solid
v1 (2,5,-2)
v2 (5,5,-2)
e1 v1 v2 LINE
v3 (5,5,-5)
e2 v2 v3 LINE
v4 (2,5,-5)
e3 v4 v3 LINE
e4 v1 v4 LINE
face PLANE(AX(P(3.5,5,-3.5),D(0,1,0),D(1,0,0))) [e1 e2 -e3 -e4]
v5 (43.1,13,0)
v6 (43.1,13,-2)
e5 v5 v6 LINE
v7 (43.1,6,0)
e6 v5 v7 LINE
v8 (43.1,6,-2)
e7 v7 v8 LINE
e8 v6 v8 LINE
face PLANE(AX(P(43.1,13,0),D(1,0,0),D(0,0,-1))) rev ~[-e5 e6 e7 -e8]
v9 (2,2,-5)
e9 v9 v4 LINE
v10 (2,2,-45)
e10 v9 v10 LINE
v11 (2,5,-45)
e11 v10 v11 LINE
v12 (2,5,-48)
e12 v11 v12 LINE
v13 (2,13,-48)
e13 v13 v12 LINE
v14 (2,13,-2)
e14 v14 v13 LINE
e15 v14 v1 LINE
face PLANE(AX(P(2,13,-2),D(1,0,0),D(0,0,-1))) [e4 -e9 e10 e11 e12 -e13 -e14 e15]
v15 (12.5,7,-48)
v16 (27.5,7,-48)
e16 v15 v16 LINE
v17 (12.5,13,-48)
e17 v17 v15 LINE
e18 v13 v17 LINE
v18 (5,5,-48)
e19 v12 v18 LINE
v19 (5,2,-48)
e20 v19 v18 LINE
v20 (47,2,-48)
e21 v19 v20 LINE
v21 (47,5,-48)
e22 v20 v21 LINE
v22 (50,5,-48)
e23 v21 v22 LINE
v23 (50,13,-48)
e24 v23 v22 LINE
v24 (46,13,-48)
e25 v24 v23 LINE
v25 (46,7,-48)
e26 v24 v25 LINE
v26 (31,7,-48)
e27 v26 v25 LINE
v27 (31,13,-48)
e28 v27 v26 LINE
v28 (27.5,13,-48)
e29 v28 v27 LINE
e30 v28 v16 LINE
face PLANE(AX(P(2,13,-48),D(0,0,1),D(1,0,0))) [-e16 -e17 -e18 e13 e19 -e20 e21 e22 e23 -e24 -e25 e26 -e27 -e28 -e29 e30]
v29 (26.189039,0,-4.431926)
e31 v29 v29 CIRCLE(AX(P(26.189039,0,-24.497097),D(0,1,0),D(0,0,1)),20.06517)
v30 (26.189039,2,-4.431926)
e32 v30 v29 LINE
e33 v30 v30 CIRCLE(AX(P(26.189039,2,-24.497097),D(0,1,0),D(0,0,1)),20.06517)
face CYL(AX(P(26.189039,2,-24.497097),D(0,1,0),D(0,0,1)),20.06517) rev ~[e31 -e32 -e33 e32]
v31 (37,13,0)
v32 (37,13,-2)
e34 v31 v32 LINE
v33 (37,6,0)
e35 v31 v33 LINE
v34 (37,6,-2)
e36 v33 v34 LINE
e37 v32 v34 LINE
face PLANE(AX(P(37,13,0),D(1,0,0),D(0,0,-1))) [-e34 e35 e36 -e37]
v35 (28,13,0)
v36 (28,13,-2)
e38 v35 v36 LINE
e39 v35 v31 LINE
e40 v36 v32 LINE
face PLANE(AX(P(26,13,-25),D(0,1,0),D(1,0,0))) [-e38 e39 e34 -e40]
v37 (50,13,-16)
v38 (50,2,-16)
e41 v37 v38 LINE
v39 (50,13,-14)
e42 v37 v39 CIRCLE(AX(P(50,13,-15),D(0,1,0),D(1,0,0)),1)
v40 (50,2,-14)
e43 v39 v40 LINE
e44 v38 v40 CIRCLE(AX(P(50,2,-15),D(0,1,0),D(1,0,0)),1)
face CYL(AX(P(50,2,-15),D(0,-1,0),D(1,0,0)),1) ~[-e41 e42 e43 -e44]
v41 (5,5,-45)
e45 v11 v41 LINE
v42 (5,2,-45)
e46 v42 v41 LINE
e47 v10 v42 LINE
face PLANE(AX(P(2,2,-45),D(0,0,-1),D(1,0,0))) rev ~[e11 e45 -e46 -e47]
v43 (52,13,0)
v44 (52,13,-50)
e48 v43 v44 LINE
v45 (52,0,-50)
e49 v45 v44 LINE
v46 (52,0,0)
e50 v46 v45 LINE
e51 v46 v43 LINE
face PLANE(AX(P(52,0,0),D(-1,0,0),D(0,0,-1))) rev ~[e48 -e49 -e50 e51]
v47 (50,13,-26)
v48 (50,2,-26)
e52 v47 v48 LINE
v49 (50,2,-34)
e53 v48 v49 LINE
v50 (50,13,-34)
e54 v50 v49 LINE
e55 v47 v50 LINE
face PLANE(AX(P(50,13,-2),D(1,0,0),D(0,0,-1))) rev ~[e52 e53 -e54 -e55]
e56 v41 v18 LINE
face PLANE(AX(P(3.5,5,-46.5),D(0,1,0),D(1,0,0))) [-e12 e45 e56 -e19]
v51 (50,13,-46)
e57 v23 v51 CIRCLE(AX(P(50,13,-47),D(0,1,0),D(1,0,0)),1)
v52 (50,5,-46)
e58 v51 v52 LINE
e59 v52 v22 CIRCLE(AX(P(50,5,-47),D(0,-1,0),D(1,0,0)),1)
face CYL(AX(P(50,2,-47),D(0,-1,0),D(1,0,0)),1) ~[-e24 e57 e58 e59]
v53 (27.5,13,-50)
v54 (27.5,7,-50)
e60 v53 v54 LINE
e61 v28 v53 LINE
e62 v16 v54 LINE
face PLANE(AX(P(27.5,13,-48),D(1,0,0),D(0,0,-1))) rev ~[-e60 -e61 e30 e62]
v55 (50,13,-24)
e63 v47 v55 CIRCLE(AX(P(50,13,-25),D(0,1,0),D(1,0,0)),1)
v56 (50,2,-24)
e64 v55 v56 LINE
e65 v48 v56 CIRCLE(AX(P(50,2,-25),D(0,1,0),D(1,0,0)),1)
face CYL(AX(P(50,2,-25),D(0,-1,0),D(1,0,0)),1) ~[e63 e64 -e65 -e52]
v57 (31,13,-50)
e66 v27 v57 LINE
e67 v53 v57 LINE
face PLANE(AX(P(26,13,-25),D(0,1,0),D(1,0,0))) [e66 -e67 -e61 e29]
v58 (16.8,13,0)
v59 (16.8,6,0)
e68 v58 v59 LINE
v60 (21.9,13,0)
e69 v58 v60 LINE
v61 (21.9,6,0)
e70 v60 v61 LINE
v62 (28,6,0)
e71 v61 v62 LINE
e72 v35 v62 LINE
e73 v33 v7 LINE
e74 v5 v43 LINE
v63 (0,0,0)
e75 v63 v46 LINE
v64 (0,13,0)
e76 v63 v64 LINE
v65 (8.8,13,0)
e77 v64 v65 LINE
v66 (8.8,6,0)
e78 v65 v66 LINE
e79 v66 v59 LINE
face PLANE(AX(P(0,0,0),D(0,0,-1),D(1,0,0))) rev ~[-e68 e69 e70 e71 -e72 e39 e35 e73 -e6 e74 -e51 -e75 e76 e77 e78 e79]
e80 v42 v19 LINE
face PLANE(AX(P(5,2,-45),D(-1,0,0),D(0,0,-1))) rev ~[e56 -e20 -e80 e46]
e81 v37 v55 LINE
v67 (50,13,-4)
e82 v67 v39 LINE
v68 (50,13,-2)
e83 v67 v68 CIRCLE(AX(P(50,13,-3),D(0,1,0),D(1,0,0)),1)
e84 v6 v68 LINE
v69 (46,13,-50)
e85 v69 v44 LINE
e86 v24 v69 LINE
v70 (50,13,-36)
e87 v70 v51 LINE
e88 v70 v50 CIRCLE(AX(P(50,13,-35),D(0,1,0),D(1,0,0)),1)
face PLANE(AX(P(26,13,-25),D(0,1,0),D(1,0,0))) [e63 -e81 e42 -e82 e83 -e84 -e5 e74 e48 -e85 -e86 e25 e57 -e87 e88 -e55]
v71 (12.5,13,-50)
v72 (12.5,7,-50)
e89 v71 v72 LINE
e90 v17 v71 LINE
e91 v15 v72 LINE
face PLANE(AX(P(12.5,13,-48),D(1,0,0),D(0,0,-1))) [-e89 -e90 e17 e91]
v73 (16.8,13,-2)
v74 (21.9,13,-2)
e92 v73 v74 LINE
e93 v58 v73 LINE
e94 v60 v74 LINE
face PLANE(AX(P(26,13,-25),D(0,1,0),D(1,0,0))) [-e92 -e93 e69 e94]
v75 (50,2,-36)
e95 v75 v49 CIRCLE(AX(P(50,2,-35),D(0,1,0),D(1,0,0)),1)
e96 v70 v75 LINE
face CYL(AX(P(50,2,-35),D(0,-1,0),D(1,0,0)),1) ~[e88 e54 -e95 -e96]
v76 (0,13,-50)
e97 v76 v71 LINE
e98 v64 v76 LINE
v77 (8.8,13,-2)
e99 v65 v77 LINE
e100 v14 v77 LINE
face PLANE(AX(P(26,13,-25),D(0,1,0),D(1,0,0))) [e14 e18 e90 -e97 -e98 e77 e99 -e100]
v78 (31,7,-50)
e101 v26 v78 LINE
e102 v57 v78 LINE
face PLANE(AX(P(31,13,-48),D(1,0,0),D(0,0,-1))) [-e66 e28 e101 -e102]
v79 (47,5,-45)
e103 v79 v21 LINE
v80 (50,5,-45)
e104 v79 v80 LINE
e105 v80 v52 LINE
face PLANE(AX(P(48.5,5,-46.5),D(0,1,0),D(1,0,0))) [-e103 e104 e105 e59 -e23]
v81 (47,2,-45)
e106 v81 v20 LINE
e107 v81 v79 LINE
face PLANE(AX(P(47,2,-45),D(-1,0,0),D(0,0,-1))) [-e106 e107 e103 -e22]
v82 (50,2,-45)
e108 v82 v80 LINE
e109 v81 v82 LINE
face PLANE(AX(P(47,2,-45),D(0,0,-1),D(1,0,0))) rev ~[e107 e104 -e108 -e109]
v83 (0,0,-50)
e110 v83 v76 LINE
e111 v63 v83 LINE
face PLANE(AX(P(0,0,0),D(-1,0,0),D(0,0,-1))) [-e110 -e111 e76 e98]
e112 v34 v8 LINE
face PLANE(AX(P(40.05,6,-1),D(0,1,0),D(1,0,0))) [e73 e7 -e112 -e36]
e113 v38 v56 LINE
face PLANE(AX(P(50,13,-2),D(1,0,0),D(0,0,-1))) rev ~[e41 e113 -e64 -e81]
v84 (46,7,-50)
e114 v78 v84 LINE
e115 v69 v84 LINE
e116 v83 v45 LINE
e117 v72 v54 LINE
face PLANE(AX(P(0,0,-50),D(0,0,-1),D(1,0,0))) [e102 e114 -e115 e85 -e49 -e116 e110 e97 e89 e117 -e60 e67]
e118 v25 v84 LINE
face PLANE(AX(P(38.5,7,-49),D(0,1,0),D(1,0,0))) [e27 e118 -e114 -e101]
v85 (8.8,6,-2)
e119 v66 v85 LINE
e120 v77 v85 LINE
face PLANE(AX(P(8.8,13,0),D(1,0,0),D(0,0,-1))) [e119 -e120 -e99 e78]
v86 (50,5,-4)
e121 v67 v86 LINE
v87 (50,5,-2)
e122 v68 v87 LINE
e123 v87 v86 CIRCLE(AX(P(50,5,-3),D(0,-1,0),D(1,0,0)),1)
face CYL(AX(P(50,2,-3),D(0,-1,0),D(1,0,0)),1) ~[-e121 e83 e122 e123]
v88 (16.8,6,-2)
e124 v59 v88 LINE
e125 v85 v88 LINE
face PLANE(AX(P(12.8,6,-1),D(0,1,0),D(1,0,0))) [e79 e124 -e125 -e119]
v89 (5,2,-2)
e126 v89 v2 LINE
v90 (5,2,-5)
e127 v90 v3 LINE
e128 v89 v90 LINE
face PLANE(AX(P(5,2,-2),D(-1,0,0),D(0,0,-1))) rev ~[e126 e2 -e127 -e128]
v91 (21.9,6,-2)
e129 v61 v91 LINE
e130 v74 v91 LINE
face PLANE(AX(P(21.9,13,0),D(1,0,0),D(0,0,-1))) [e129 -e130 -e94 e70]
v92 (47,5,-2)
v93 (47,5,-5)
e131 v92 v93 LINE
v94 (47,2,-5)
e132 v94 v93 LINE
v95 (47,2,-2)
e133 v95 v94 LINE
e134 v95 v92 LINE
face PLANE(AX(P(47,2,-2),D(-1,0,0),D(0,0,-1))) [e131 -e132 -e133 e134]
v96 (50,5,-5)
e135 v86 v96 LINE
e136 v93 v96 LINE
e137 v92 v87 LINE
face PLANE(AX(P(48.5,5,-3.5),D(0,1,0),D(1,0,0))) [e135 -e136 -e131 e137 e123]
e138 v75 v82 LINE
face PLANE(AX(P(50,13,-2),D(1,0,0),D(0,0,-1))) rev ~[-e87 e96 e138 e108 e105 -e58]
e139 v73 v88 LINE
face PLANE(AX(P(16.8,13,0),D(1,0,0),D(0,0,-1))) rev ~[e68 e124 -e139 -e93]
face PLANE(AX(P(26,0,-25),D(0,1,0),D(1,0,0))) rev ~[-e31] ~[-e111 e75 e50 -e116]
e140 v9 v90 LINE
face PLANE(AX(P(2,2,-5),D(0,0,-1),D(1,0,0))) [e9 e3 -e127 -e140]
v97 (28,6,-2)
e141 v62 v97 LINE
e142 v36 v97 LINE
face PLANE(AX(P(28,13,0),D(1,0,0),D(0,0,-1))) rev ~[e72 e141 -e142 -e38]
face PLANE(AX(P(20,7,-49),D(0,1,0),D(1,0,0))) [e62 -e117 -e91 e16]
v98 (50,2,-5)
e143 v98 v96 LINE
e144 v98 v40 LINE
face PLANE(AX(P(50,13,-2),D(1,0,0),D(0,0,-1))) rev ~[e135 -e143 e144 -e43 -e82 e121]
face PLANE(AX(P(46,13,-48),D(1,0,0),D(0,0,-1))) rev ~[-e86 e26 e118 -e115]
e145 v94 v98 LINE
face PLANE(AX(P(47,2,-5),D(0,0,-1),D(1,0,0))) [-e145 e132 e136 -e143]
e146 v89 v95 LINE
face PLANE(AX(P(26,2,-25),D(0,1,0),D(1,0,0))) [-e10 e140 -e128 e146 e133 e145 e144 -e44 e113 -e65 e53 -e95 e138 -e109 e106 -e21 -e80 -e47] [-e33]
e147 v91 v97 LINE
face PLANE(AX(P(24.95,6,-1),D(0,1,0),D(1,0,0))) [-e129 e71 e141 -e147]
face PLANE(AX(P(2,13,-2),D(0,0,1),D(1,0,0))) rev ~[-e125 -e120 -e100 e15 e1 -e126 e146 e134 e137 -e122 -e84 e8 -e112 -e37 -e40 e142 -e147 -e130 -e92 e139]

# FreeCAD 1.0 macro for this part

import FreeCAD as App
import Part
import Sketcher


def add_polygon(sketch, points):
    """Adds a closed chain of lines whose ends are joined by coincident constraints."""
    first, n = sketch.GeometryCount, len(points)
    for a, b in zip(points, points[1:] + points[:1]):
        sketch.addGeometry(Part.LineSegment(App.Vector(*a, 0), App.Vector(*b, 0)), False)
    for i in range(n):
        sketch.addConstraint(Sketcher.Constraint("Coincident", first + i, 2, first + (i + 1) % n, 1))

doc = App.newDocument("Part")
params = doc.addObject("Spreadsheet::Sheet", "Params")
for row, (alias, value) in enumerate([
    ("sketch1_width", "52 mm"),
    ("sketch1_height", "50 mm"),
    ("pad1_length", "13 mm"),
    ("sketch2_width", "48 mm"),
    ("sketch2_height", "46 mm"),
    ("pocket1_length", "11 mm"),
    ("sketch3_width", "8 mm"),
    ("sketch3_height", "2 mm"),
    ("sketch3_width2", "6.1 mm"),
    ("pocket2_length", "7 mm"),
    ("sketch4_width", "3 mm"),
    ("pad2_length", "3 mm"),
    ("sketch5_diameter", "2 mm"),
    ("pad3_length", "11 mm"),
    ("sketch6_width", "15 mm"),
    ("sketch6_height", "2 mm"),
    ("pocket3_length", "6 mm"),
    ("pocket4_length", "10 mm"),
], start=1):
    params.set(f"A{row}", alias)
    params.set(f"B{row}", "=" + value)
    params.setAlias(f"B{row}", alias)

body = doc.addObject("PartDesign::Body", "Body")

# Sketch on XZ plane
sketch1 = body.newObject("Sketcher::SketchObject", "Sketch")
sketch1.AttachmentSupport = (doc.getObject("XZ_Plane"), [""])
sketch1.MapMode = "FlatFace"
add_polygon(sketch1, [(0, -50), (0, 0), (52, 0), (52, -50)])  # lines 0-3
sketch1.addConstraint(Sketcher.Constraint("Vertical", 0))
sketch1.addConstraint(Sketcher.Constraint("Horizontal", 1))
sketch1.addConstraint(Sketcher.Constraint("Vertical", 2))
sketch1.addConstraint(Sketcher.Constraint("Horizontal", 3))
sketch1.addConstraint(Sketcher.Constraint("Coincident", 0, 2, -1, 1))
sketch1.addConstraint(Sketcher.Constraint("DistanceX", 1, 1, 1, 2, 52.0))
sketch1.addConstraint(Sketcher.Constraint("DistanceY", 0, 1, 0, 2, 50.0))
sketch1.setExpression("Constraints[9]", "Params.sketch1_width")
sketch1.setExpression("Constraints[10]", "Params.sketch1_height")
pad1 = body.newObject("PartDesign::Pad", "Pad")
pad1.Profile = sketch1
pad1.setExpression("Length", "Params.pad1_length")
pad1.Reversed = True

# Sketch on XZ plane
sketch2 = body.newObject("Sketcher::SketchObject", "Sketch001")
sketch2.AttachmentSupport = (doc.getObject("XZ_Plane"), [""])
sketch2.MapMode = "FlatFace"
sketch2.AttachmentOffset = App.Placement(App.Vector(0, 0, -13), App.Rotation())
add_polygon(sketch2, [(2, -48), (2, -2), (50, -2), (50, -48)])  # lines 0-3
sketch2.addConstraint(Sketcher.Constraint("Vertical", 0))
sketch2.addConstraint(Sketcher.Constraint("Horizontal", 1))
sketch2.addConstraint(Sketcher.Constraint("Vertical", 2))
sketch2.addConstraint(Sketcher.Constraint("Horizontal", 3))
sketch2.addConstraint(Sketcher.Constraint("DistanceX", 1, 1, 1, 2, 48.0))
sketch2.addConstraint(Sketcher.Constraint("DistanceY", 0, 1, 0, 2, 46.0))
sketch2.addConstraint(Sketcher.Constraint("DistanceX", -1, 1, 0, 2, 2.0))
sketch2.addConstraint(Sketcher.Constraint("DistanceY", 0, 2, -1, 1, 2.0))
sketch2.setExpression("Constraints[8]", "Params.sketch2_width")
sketch2.setExpression("Constraints[9]", "Params.sketch2_height")
pocket1 = body.newObject("PartDesign::Pocket", "Pocket")
pocket1.Profile = sketch2
pocket1.setExpression("Length", "Params.pocket1_length")
pocket1.Reversed = True

# Sketch on XZ plane
sketch3 = body.newObject("Sketcher::SketchObject", "Sketch002")
sketch3.AttachmentSupport = (doc.getObject("XZ_Plane"), [""])
sketch3.MapMode = "FlatFace"
sketch3.AttachmentOffset = App.Placement(App.Vector(0, 0, -13), App.Rotation())
add_polygon(sketch3, [(37, -2), (37, 0), (43.1, 0), (43.1, -2)])  # lines 0-3
add_polygon(sketch3, [(21.9, -2), (21.9, 0), (28, 0), (28, -2)])  # lines 4-7
add_polygon(sketch3, [(8.8, -2), (8.8, 0), (16.8, 0), (16.8, -2)])  # lines 8-11
sketch3.addConstraint(Sketcher.Constraint("Vertical", 0))
sketch3.addConstraint(Sketcher.Constraint("Horizontal", 1))
sketch3.addConstraint(Sketcher.Constraint("Vertical", 2))
sketch3.addConstraint(Sketcher.Constraint("Horizontal", 3))
sketch3.addConstraint(Sketcher.Constraint("Vertical", 4))
sketch3.addConstraint(Sketcher.Constraint("Horizontal", 5))
sketch3.addConstraint(Sketcher.Constraint("Vertical", 6))
sketch3.addConstraint(Sketcher.Constraint("Horizontal", 7))
sketch3.addConstraint(Sketcher.Constraint("Vertical", 8))
sketch3.addConstraint(Sketcher.Constraint("Horizontal", 9))
sketch3.addConstraint(Sketcher.Constraint("Vertical", 10))
sketch3.addConstraint(Sketcher.Constraint("Horizontal", 11))
sketch3.addConstraint(Sketcher.Constraint("PointOnObject", 0, 2, -1))
sketch3.addConstraint(Sketcher.Constraint("PointOnObject", 4, 2, -1))
sketch3.addConstraint(Sketcher.Constraint("PointOnObject", 8, 2, -1))
sketch3.addConstraint(Sketcher.Constraint("Horizontal", 3, 2, 6, 2))
sketch3.addConstraint(Sketcher.Constraint("Horizontal", 7, 2, 10, 2))
sketch3.addConstraint(Sketcher.Constraint("Equal", 3, 5))
sketch3.addConstraint(Sketcher.Constraint("DistanceX", 9, 1, 9, 2, 8.0))
sketch3.addConstraint(Sketcher.Constraint("DistanceY", 0, 1, 0, 2, 2.0))
sketch3.addConstraint(Sketcher.Constraint("DistanceX", 1, 1, 1, 2, 6.1))
sketch3.addConstraint(Sketcher.Constraint("DistanceX", -1, 1, 0, 2, 37.0))
sketch3.addConstraint(Sketcher.Constraint("DistanceX", -1, 1, 5, 2, 28.0))
sketch3.addConstraint(Sketcher.Constraint("DistanceX", -1, 1, 8, 2, 8.8))
sketch3.setExpression("Constraints[30]", "Params.sketch3_width")
sketch3.setExpression("Constraints[31]", "Params.sketch3_height")
sketch3.setExpression("Constraints[32]", "Params.sketch3_width2")
pocket2 = body.newObject("PartDesign::Pocket", "Pocket001")
pocket2.Profile = sketch3
pocket2.setExpression("Length", "Params.pocket2_length")
pocket2.Reversed = True

# Sketch on XZ plane
sketch4 = body.newObject("Sketcher::SketchObject", "Sketch003")
sketch4.AttachmentSupport = (doc.getObject("XZ_Plane"), [""])
sketch4.MapMode = "FlatFace"
sketch4.AttachmentOffset = App.Placement(App.Vector(0, 0, -2), App.Rotation())
add_polygon(sketch4, [(2, -48), (2, -45), (5, -45), (5, -48)])  # lines 0-3
add_polygon(sketch4, [(47, -48), (47, -45), (50, -45), (50, -48)])  # lines 4-7
add_polygon(sketch4, [(2, -5), (2, -2), (5, -2), (5, -5)])  # lines 8-11
add_polygon(sketch4, [(47, -5), (47, -2), (50, -2), (50, -5)])  # lines 12-15
sketch4.addConstraint(Sketcher.Constraint("Vertical", 0))
sketch4.addConstraint(Sketcher.Constraint("Horizontal", 1))
sketch4.addConstraint(Sketcher.Constraint("Vertical", 2))
sketch4.addConstraint(Sketcher.Constraint("Horizontal", 3))
sketch4.addConstraint(Sketcher.Constraint("Vertical", 4))
sketch4.addConstraint(Sketcher.Constraint("Horizontal", 5))
sketch4.addConstraint(Sketcher.Constraint("Vertical", 6))
sketch4.addConstraint(Sketcher.Constraint("Horizontal", 7))
sketch4.addConstraint(Sketcher.Constraint("Vertical", 8))
sketch4.addConstraint(Sketcher.Constraint("Horizontal", 9))
sketch4.addConstraint(Sketcher.Constraint("Vertical", 10))
sketch4.addConstraint(Sketcher.Constraint("Horizontal", 11))
sketch4.addConstraint(Sketcher.Constraint("Vertical", 12))
sketch4.addConstraint(Sketcher.Constraint("Horizontal", 13))
sketch4.addConstraint(Sketcher.Constraint("Vertical", 14))
sketch4.addConstraint(Sketcher.Constraint("Horizontal", 15))
sketch4.addConstraint(Sketcher.Constraint("Horizontal", 1, 2, 4, 2))
sketch4.addConstraint(Sketcher.Constraint("Horizontal", 3, 2, 6, 2))
sketch4.addConstraint(Sketcher.Constraint("Horizontal", 9, 2, 12, 2))
sketch4.addConstraint(Sketcher.Constraint("Horizontal", 11, 2, 14, 2))
sketch4.addConstraint(Sketcher.Constraint("Vertical", 3, 2, 8, 2))
sketch4.addConstraint(Sketcher.Constraint("Vertical", 2, 2, 9, 2))
sketch4.addConstraint(Sketcher.Constraint("Vertical", 7, 2, 12, 2))
sketch4.addConstraint(Sketcher.Constraint("Vertical", 6, 2, 13, 2))
sketch4.addConstraint(Sketcher.Constraint("Equal", 3, 5))
sketch4.addConstraint(Sketcher.Constraint("Equal", 15, 0))
sketch4.addConstraint(Sketcher.Constraint("Equal", 6, 8))
sketch4.addConstraint(Sketcher.Constraint("DistanceX", 1, 1, 1, 2, 3.0))
sketch4.addConstraint(Sketcher.Constraint("DistanceX", -1, 1, 0, 2, 2.0))
sketch4.addConstraint(Sketcher.Constraint("DistanceY", 0, 2, -1, 1, 45.0))
sketch4.addConstraint(Sketcher.Constraint("DistanceX", -1, 1, 4, 2, 47.0))
sketch4.addConstraint(Sketcher.Constraint("DistanceY", 8, 2, -1, 1, 2.0))
sketch4.setExpression("Constraints[43]", "Params.sketch4_width")
pad2 = body.newObject("PartDesign::Pad", "Pad001")
pad2.Profile = sketch4
pad2.setExpression("Length", "Params.pad2_length")
pad2.Reversed = True

# Sketch on XZ plane
sketch5 = body.newObject("Sketcher::SketchObject", "Sketch004")
sketch5.AttachmentSupport = (doc.getObject("XZ_Plane"), [""])
sketch5.MapMode = "FlatFace"
sketch5.AttachmentOffset = App.Placement(App.Vector(0, 0, -2), App.Rotation())
sketch5.addGeometry(Part.Circle(App.Vector(50, -35, 0), App.Vector(0, 0, 1), 1), False)
sketch5.addGeometry(Part.Circle(App.Vector(50, -25, 0), App.Vector(0, 0, 1), 1), False)
sketch5.addGeometry(Part.Circle(App.Vector(50, -15, 0), App.Vector(0, 0, 1), 1), False)
sketch5.addGeometry(Part.Circle(App.Vector(50, -47, 0), App.Vector(0, 0, 1), 1), False)
sketch5.addGeometry(Part.Circle(App.Vector(50, -3, 0), App.Vector(0, 0, 1), 1), False)
sketch5.addConstraint(Sketcher.Constraint("Equal", 0, 1))
sketch5.addConstraint(Sketcher.Constraint("Equal", 1, 2))
sketch5.addConstraint(Sketcher.Constraint("Equal", 2, 3))
sketch5.addConstraint(Sketcher.Constraint("Equal", 3, 4))
sketch5.addConstraint(Sketcher.Constraint("Vertical", 0, 3, 1, 3))
sketch5.addConstraint(Sketcher.Constraint("Vertical", 1, 3, 2, 3))
sketch5.addConstraint(Sketcher.Constraint("Vertical", 2, 3, 3, 3))
sketch5.addConstraint(Sketcher.Constraint("Vertical", 3, 3, 4, 3))
sketch5.addConstraint(Sketcher.Constraint("Diameter", 0, 2.0))
sketch5.addConstraint(Sketcher.Constraint("DistanceX", -1, 1, 0, 3, 50.0))
sketch5.addConstraint(Sketcher.Constraint("DistanceY", 0, 3, -1, 1, 35.0))
sketch5.addConstraint(Sketcher.Constraint("DistanceY", 1, 3, -1, 1, 25.0))
sketch5.addConstraint(Sketcher.Constraint("DistanceY", 2, 3, -1, 1, 15.0))
sketch5.addConstraint(Sketcher.Constraint("DistanceY", 3, 3, -1, 1, 47.0))
sketch5.addConstraint(Sketcher.Constraint("DistanceY", 4, 3, -1, 1, 3.0))
sketch5.setExpression("Constraints[8]", "Params.sketch5_diameter")
pad3 = body.newObject("PartDesign::Pad", "Pad002")
pad3.Profile = sketch5
pad3.setExpression("Length", "Params.pad3_length")
pad3.Reversed = True

# Sketch on XZ plane
sketch6 = body.newObject("Sketcher::SketchObject", "Sketch005")
sketch6.AttachmentSupport = (doc.getObject("XZ_Plane"), [""])
sketch6.MapMode = "FlatFace"
sketch6.AttachmentOffset = App.Placement(App.Vector(0, 0, -13), App.Rotation())
add_polygon(sketch6, [(31, -50), (31, -48), (46, -48), (46, -50)])  # lines 0-3
add_polygon(sketch6, [(12.5, -50), (12.5, -48), (27.5, -48), (27.5, -50)])  # lines 4-7
sketch6.addConstraint(Sketcher.Constraint("Vertical", 0))
sketch6.addConstraint(Sketcher.Constraint("Horizontal", 1))
sketch6.addConstraint(Sketcher.Constraint("Vertical", 2))
sketch6.addConstraint(Sketcher.Constraint("Horizontal", 3))
sketch6.addConstraint(Sketcher.Constraint("Vertical", 4))
sketch6.addConstraint(Sketcher.Constraint("Horizontal", 5))
sketch6.addConstraint(Sketcher.Constraint("Vertical", 6))
sketch6.addConstraint(Sketcher.Constraint("Horizontal", 7))
sketch6.addConstraint(Sketcher.Constraint("Horizontal", 1, 2, 4, 2))
sketch6.addConstraint(Sketcher.Constraint("Horizontal", 3, 2, 6, 2))
sketch6.addConstraint(Sketcher.Constraint("Equal", 3, 5))
sketch6.addConstraint(Sketcher.Constraint("DistanceX", 1, 1, 1, 2, 15.0))
sketch6.addConstraint(Sketcher.Constraint("DistanceY", 0, 1, 0, 2, 2.0))
sketch6.addConstraint(Sketcher.Constraint("DistanceX", -1, 1, 0, 2, 31.0))
sketch6.addConstraint(Sketcher.Constraint("DistanceY", 0, 2, -1, 1, 48.0))
sketch6.addConstraint(Sketcher.Constraint("DistanceX", -1, 1, 4, 2, 12.5))
sketch6.setExpression("Constraints[19]", "Params.sketch6_width")
sketch6.setExpression("Constraints[20]", "Params.sketch6_height")
pocket3 = body.newObject("PartDesign::Pocket", "Pocket002")
pocket3.Profile = sketch6
pocket3.setExpression("Length", "Params.pocket3_length")
pocket3.Reversed = True

# Sketch on XZ plane
sketch7 = body.newObject("Sketcher::SketchObject", "Sketch006")
sketch7.AttachmentSupport = (doc.getObject("XZ_Plane"), [""])
sketch7.MapMode = "FlatFace"
sketch7.AttachmentOffset = App.Placement(App.Vector(0, 0, -2), App.Rotation())
sketch7.addGeometry(Part.Circle(App.Vector(26, -24, 0), App.Vector(0, 0, 1), 20), False)
sketch7.addConstraint(Sketcher.Constraint("Diameter", 0, 40.130341))
sketch7.addConstraint(Sketcher.Constraint("DistanceX", -1, 1, 0, 3, 26.189039))
sketch7.addConstraint(Sketcher.Constraint("DistanceY", 0, 3, -1, 1, 24.497097))
pocket4 = body.newObject("PartDesign::Pocket", "Pocket003")
pocket4.Profile = sketch7
pocket4.setExpression("Length", "Params.pocket4_length")
pocket4.Reversed = True

doc.recompute()
